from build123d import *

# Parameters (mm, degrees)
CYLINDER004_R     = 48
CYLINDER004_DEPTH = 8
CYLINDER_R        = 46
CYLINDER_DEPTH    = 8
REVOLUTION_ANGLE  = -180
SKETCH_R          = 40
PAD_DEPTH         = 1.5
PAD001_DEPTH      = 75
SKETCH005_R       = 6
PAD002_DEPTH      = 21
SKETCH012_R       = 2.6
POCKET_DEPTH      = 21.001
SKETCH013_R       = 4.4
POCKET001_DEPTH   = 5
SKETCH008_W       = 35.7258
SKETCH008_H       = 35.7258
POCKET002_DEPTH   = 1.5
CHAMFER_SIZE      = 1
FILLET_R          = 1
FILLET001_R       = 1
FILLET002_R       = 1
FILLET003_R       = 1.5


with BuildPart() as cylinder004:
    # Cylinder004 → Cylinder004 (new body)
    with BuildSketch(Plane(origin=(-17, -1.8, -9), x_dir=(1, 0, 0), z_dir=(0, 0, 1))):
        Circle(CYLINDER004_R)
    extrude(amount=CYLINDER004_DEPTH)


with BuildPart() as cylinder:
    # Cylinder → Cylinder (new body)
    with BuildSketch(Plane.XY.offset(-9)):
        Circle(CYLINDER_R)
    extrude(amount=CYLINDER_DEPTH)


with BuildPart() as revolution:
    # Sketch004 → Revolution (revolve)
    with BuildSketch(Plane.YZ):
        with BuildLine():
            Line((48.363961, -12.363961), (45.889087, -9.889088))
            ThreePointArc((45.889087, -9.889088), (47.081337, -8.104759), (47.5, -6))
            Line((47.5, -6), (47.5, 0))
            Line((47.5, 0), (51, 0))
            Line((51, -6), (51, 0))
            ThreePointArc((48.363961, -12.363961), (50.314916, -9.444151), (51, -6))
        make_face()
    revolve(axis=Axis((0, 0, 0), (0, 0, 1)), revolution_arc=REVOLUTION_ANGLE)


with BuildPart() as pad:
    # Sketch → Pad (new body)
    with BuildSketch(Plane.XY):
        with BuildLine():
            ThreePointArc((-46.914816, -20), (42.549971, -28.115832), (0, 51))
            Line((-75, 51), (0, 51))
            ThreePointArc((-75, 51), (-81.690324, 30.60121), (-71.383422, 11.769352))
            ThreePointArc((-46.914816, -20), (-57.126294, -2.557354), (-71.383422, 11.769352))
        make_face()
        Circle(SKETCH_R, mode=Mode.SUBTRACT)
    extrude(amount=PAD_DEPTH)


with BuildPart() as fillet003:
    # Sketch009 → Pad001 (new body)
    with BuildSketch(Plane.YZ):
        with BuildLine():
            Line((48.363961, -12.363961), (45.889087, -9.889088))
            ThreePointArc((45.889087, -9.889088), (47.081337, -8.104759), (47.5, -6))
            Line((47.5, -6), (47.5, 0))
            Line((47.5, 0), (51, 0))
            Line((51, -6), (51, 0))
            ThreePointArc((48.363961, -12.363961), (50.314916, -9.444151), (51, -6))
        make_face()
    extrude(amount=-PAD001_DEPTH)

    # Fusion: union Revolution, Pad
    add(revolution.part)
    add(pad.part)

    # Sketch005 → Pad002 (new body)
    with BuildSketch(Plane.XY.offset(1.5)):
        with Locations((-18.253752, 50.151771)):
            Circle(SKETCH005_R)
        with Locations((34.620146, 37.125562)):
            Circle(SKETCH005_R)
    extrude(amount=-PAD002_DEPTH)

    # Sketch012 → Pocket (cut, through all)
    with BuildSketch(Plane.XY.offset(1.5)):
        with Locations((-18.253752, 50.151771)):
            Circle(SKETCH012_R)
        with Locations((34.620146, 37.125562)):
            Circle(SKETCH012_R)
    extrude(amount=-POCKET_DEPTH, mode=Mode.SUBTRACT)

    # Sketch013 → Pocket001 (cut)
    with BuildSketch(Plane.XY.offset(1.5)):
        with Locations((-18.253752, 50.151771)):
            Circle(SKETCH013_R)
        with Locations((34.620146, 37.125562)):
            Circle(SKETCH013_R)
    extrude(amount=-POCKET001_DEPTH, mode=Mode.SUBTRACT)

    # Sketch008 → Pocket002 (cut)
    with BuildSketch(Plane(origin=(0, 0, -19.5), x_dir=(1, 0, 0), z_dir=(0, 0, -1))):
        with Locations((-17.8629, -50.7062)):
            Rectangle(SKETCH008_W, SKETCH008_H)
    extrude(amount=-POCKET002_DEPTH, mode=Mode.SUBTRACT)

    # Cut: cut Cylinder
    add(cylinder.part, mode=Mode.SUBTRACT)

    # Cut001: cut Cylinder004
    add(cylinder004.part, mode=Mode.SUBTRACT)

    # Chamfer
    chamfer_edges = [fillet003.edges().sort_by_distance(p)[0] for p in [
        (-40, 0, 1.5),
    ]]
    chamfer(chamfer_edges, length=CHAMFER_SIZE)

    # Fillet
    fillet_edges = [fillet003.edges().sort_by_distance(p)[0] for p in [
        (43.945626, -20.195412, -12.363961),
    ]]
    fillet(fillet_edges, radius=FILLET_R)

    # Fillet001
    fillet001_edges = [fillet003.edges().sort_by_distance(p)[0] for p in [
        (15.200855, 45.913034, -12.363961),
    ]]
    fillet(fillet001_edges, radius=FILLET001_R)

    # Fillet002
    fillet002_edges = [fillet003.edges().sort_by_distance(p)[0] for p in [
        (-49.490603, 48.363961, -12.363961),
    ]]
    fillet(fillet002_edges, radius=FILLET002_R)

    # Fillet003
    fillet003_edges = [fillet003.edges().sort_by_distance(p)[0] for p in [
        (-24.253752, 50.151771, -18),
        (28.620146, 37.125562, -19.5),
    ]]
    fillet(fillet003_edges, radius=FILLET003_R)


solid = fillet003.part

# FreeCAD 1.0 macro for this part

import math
import FreeCAD as App
import Part
import Sketcher

V = App.Vector
Q = App.Units.Quantity


def edges_at(feature, points):
    """Names of the edges that pass closest to the given points."""
    edges = feature.Shape.Edges
    near = lambda p: min(range(len(edges)), key=lambda i: edges[i].distToShape(Part.Vertex(*p))[0])
    return sorted({f"Edge{near(p) + 1}" for p in points})


def add_polygon(sketch, points):
    """Adds a closed chain of lines whose ends are joined by coincident constraints."""
    first, n = sketch.GeometryCount, len(points)
    for a, b in zip(points, points[1:] + points[:1]):
        sketch.addGeometry(Part.LineSegment(App.Vector(*a, 0), App.Vector(*b, 0)), False)
    for i in range(n):
        sketch.addConstraint(Sketcher.Constraint("Coincident", first + i, 2, first + (i + 1) % n, 1))

doc = App.newDocument("Part")
body = doc.addObject("PartDesign::Body", "Body")

sketch1 = body.newObject("Sketcher::SketchObject", "Sketch")
sketch1.AttachmentSupport = (doc.getObject("XY_Plane"), [""])
sketch1.MapMode = "FlatFace"
sketch1.AttachmentOffset = App.Placement(V(0, 0, -9), App.Rotation())
sketch1.addGeometry(Part.Circle(V(-17, -1.8, 0), V(0, 0, 1), 48), False)
sketch1.addConstraint([
    Sketcher.Constraint("Diameter", 0, Q("96 mm")),
    Sketcher.Constraint("DistanceX", 0, 3, -1, 1, Q("17 mm")),
    Sketcher.Constraint("DistanceY", 0, 3, -1, 1, Q("1.8 mm")),
])
pad1 = body.newObject("PartDesign::Pad", "Pad")
pad1.Profile = sketch1
pad1.Length = 8
body2 = doc.addObject("PartDesign::Body", "Body001")

sketch2 = body2.newObject("Sketcher::SketchObject", "Sketch001")
sketch2.AttachmentSupport = (doc.getObject("XY_Plane001"), [""])
sketch2.MapMode = "FlatFace"
sketch2.AttachmentOffset = App.Placement(V(0, 0, -9), App.Rotation())
sketch2.addGeometry(Part.Circle(V(0, 0, 0), V(0, 0, 1), 46), False)
sketch2.addConstraint([
    Sketcher.Constraint("Coincident", 0, 3, -1, 1),
    Sketcher.Constraint("Diameter", 0, Q("92 mm")),
])
pad2 = body2.newObject("PartDesign::Pad", "Pad001")
pad2.Profile = sketch2
pad2.Length = 8
body3 = doc.addObject("PartDesign::Body", "Body002")

sketch3 = body3.newObject("Sketcher::SketchObject", "Sketch002")
sketch3.AttachmentSupport = (doc.getObject("YZ_Plane002"), [""])
sketch3.MapMode = "FlatFace"
sketch3.addGeometry([
    Part.LineSegment(V(45.889087, -9.889088, 0), V(48.363961, -12.363961, 0)),
    Part.ArcOfCircle(Part.Circle(V(42.000003, -6.000001, 0), V(0, 0, 1), 8.999997), math.radians(-45.000008), math.radians(0.000008)),
    Part.LineSegment(V(51, -6, 0), V(51, 0, 0)),
    Part.LineSegment(V(51, 0, 0), V(47.5, 0, 0)),
    Part.LineSegment(V(47.5, 0, 0), V(47.5, -6, 0)),
    Part.ArcOfCircle(Part.Circle(V(41.999994, -5.999998, 0), V(0, 0, 1), 5.500006), math.radians(-44.999978), math.radians(-0.000022)),
], False)
sketch3.addConstraint([
    Sketcher.Constraint("Coincident", 0, 2, 1, 1),
    Sketcher.Constraint("Tangent", 1, 2, 2, 1),
    Sketcher.Constraint("Coincident", 2, 2, 3, 1),
    Sketcher.Constraint("Coincident", 3, 2, 4, 1),
    Sketcher.Constraint("Tangent", 4, 2, 5, 2),
    Sketcher.Constraint("Coincident", 5, 1, 0, 1),
    Sketcher.Constraint("Vertical", 2),
    Sketcher.Constraint("Horizontal", 3),
    Sketcher.Constraint("Vertical", 4),
    Sketcher.Constraint("Coincident", 5, 3, 1, 3),
    Sketcher.Constraint("PointOnObject", 2, 2, -1),
    Sketcher.Constraint("DistanceY", 2, 1, 2, 2, Q("6 mm")),
    Sketcher.Constraint("Angle", 0, Q("-44.999988 deg")),
    Sketcher.Constraint("DistanceX", 3, 2, 3, 1, Q("3.5 mm")),
    Sketcher.Constraint("DistanceX", -1, 1, 1, 2, Q("51 mm")),
    Sketcher.Constraint("Radius", 1, Q("8.999997 mm")),
    Sketcher.Constraint("DistanceX", -1, 1, 0, 2, Q("48.363961 mm")),
])
revolution = body3.newObject("PartDesign::Revolution", "Revolution")
revolution.Profile = sketch3
revolution.ReferenceAxis = (sketch3, ["V_Axis"])
revolution.Angle = 180
revolution.Reversed = True
body4 = doc.addObject("PartDesign::Body", "Body003")

sketch4 = body4.newObject("Sketcher::SketchObject", "Sketch003")
sketch4.AttachmentSupport = (doc.getObject("XY_Plane003"), [""])
sketch4.MapMode = "FlatFace"
sketch4.addGeometry([
    Part.ArcOfCircle(Part.Circle(V(0, 0, 0), V(0, 0, 1), 51), math.radians(-156.911228), math.radians(90.000001)),
    Part.LineSegment(V(0, 51, 0), V(-75, 51, 0)),
    Part.ArcOfCircle(Part.Circle(V(-54.804327, 33.079764, 0), V(0, 0, 1), 27.000001), math.radians(138.416379), math.radians(232.117764)),
    Part.ArcOfCircle(Part.Circle(V(-120.506659, -51.372614, 0), V(0, 0, 1), 80.000001), math.radians(23.088822), math.radians(52.117769)),
    Part.Circle(V(0, 0, 0), V(0, 0, 1), 40),
], False)
sketch4.addConstraint([
    Sketcher.Constraint("Coincident", 0, 2, 1, 1),
    Sketcher.Constraint("Coincident", 1, 2, 2, 1),
    Sketcher.Constraint("Coincident", 2, 2, 3, 2),
    Sketcher.Constraint("Coincident", 3, 1, 0, 1),
    Sketcher.Constraint("Horizontal", 1),
    Sketcher.Constraint("Coincident", 0, 3, -1, 1),
    Sketcher.Constraint("Coincident", 4, 3, -1, 1),
    Sketcher.Constraint("PointOnObject", 0, 2, -2),
    Sketcher.Constraint("Diameter", 4, Q("80 mm")),
    Sketcher.Constraint("Radius", 0, Q("51 mm")),
    Sketcher.Constraint("Radius", 2, Q("27.000001 mm")),
    Sketcher.Constraint("Radius", 3, Q("80.000001 mm")),
    Sketcher.Constraint("DistanceX", 1, 2, 1, 1, Q("75 mm")),
    Sketcher.Constraint("DistanceY", 3, 1, -1, 1, Q("20 mm")),
    Sketcher.Constraint("DistanceX", 3, 3, -1, 1, Q("120.506659 mm")),
    Sketcher.Constraint("DistanceX", 2, 2, -1, 1, Q("71.383422 mm")),
])
pad3 = body4.newObject("PartDesign::Pad", "Pad002")
pad3.Profile = sketch4
pad3.Length = 1.5
body5 = doc.addObject("PartDesign::Body", "Body004")

sketch5 = body5.newObject("Sketcher::SketchObject", "Sketch004")
sketch5.AttachmentSupport = (doc.getObject("YZ_Plane004"), [""])
sketch5.MapMode = "FlatFace"
sketch5.addGeometry([
    Part.LineSegment(V(45.889087, -9.889088, 0), V(48.363961, -12.363961, 0)),
    Part.ArcOfCircle(Part.Circle(V(42.000003, -6.000001, 0), V(0, 0, 1), 8.999997), math.radians(-45.000008), math.radians(0.000008)),
    Part.LineSegment(V(51, -6, 0), V(51, 0, 0)),
    Part.LineSegment(V(51, 0, 0), V(47.5, 0, 0)),
    Part.LineSegment(V(47.5, 0, 0), V(47.5, -6, 0)),
    Part.ArcOfCircle(Part.Circle(V(41.999994, -5.999998, 0), V(0, 0, 1), 5.500006), math.radians(-44.999978), math.radians(-0.000022)),
], False)
sketch5.addConstraint([
    Sketcher.Constraint("Coincident", 0, 2, 1, 1),
    Sketcher.Constraint("Tangent", 1, 2, 2, 1),
    Sketcher.Constraint("Coincident", 2, 2, 3, 1),
    Sketcher.Constraint("Coincident", 3, 2, 4, 1),
    Sketcher.Constraint("Tangent", 4, 2, 5, 2),
    Sketcher.Constraint("Coincident", 5, 1, 0, 1),
    Sketcher.Constraint("Vertical", 2),
    Sketcher.Constraint("Horizontal", 3),
    Sketcher.Constraint("Vertical", 4),
    Sketcher.Constraint("Coincident", 5, 3, 1, 3),
    Sketcher.Constraint("PointOnObject", 2, 2, -1),
    Sketcher.Constraint("DistanceY", 2, 1, 2, 2, Q("6 mm")),
    Sketcher.Constraint("Angle", 0, Q("-44.999988 deg")),
    Sketcher.Constraint("DistanceX", 3, 2, 3, 1, Q("3.5 mm")),
    Sketcher.Constraint("DistanceX", -1, 1, 1, 2, Q("51 mm")),
    Sketcher.Constraint("Radius", 1, Q("8.999997 mm")),
    Sketcher.Constraint("DistanceX", -1, 1, 0, 2, Q("48.363961 mm")),
])
pad4 = body5.newObject("PartDesign::Pad", "Pad003")
pad4.Profile = sketch5
pad4.Length = 75
pad4.Reversed = True
doc.recompute()

boolean = body5.newObject("PartDesign::Boolean", "Boolean")
boolean.Type = "Fuse"
boolean.addObjects([body3])
doc.recompute()

boolean2 = body5.newObject("PartDesign::Boolean", "Boolean001")
boolean2.Type = "Fuse"
boolean2.addObjects([body4])

sketch6 = body5.newObject("Sketcher::SketchObject", "Sketch005")
sketch6.AttachmentSupport = (doc.getObject("XY_Plane004"), [""])
sketch6.MapMode = "FlatFace"
sketch6.AttachmentOffset = App.Placement(V(0, 0, 1.5), App.Rotation())
sketch6.addGeometry([
    Part.Circle(V(-18.253752, 50.151771, 0), V(0, 0, 1), 6),
    Part.Circle(V(34.620146, 37.125562, 0), V(0, 0, 1), 6),
], False)
sketch6.addConstraint([
    Sketcher.Constraint("Equal", 0, 1),
    Sketcher.Constraint("Diameter", 0, Q("12 mm")),
    Sketcher.Constraint("DistanceX", 0, 3, -1, 1, Q("18.253752 mm")),
    Sketcher.Constraint("DistanceY", -1, 1, 0, 3, Q("50.151771 mm")),
    Sketcher.Constraint("DistanceY", 1, 3, 0, 3, Q("13.026209 mm")),
    Sketcher.Constraint("DistanceX", -1, 1, 1, 3, Q("34.620146 mm")),
])
pad5 = body5.newObject("PartDesign::Pad", "Pad004")
pad5.Profile = sketch6
pad5.Length = 21
pad5.Reversed = True

sketch7 = body5.newObject("Sketcher::SketchObject", "Sketch006")
sketch7.AttachmentSupport = (doc.getObject("XY_Plane004"), [""])
sketch7.MapMode = "FlatFace"
sketch7.AttachmentOffset = App.Placement(V(0, 0, 1.5), App.Rotation())
sketch7.addGeometry([
    Part.Circle(V(-18.253752, 50.151771, 0), V(0, 0, 1), 2.6),
    Part.Circle(V(34.620146, 37.125562, 0), V(0, 0, 1), 2.6),
], False)
sketch7.addConstraint([
    Sketcher.Constraint("Equal", 0, 1),
    Sketcher.Constraint("Diameter", 0, Q("5.2 mm")),
    Sketcher.Constraint("DistanceX", 0, 3, -1, 1, Q("18.253752 mm")),
    Sketcher.Constraint("DistanceY", -1, 1, 0, 3, Q("50.151771 mm")),
    Sketcher.Constraint("DistanceY", 1, 3, 0, 3, Q("13.026209 mm")),
    Sketcher.Constraint("DistanceX", -1, 1, 1, 3, Q("34.620146 mm")),
])
pocket1 = body5.newObject("PartDesign::Pocket", "Pocket")
pocket1.Profile = sketch7
pocket1.Type = "ThroughAll"

sketch8 = body5.newObject("Sketcher::SketchObject", "Sketch007")
sketch8.AttachmentSupport = (doc.getObject("XY_Plane004"), [""])
sketch8.MapMode = "FlatFace"
sketch8.AttachmentOffset = App.Placement(V(0, 0, 1.5), App.Rotation())
sketch8.addGeometry([
    Part.Circle(V(-18.253752, 50.151771, 0), V(0, 0, 1), 4.4),
    Part.Circle(V(34.620146, 37.125562, 0), V(0, 0, 1), 4.4),
], False)
sketch8.addConstraint([
    Sketcher.Constraint("Equal", 0, 1),
    Sketcher.Constraint("Diameter", 0, Q("8.8 mm")),
    Sketcher.Constraint("DistanceX", 0, 3, -1, 1, Q("18.253752 mm")),
    Sketcher.Constraint("DistanceY", -1, 1, 0, 3, Q("50.151771 mm")),
    Sketcher.Constraint("DistanceY", 1, 3, 0, 3, Q("13.026209 mm")),
    Sketcher.Constraint("DistanceX", -1, 1, 1, 3, Q("34.620146 mm")),
])
pocket2 = body5.newObject("PartDesign::Pocket", "Pocket001")
pocket2.Profile = sketch8
pocket2.Length = 5

sketch9 = body5.newObject("Sketcher::SketchObject", "Sketch008")
sketch9.AttachmentSupport = (doc.getObject("XY_Plane004"), [""])
sketch9.MapMode = "FlatFace"
sketch9.AttachmentOffset = App.Placement(V(0, 0, -19.5), App.Rotation())
add_polygon(sketch9, [(-35.7258, 32.8433), (-35.7258, 68.5691), (0, 68.5691), (0, 32.8433)])
sketch9.addConstraint([
    Sketcher.Constraint("Vertical", 0),
    Sketcher.Constraint("Horizontal", 1),
    Sketcher.Constraint("Vertical", 2),
    Sketcher.Constraint("Horizontal", 3),
    Sketcher.Constraint("PointOnObject", 1, 2, -2),
    Sketcher.Constraint("Equal", 3, 0),
    Sketcher.Constraint("DistanceX", 1, 1, 1, 2, Q("35.7258 mm")),
    Sketcher.Constraint("DistanceY", -1, 1, 0, 2, Q("68.5691 mm")),
])
pocket3 = body5.newObject("PartDesign::Pocket", "Pocket002")
pocket3.Profile = sketch9
pocket3.Length = 1.5
pocket3.Reversed = True
doc.recompute()

boolean3 = body5.newObject("PartDesign::Boolean", "Boolean002")
boolean3.Type = "Cut"
boolean3.addObjects([body2])
doc.recompute()

boolean4 = body5.newObject("PartDesign::Boolean", "Boolean003")
boolean4.Type = "Cut"
boolean4.addObjects([body])
doc.recompute()

chamfer = body5.newObject("PartDesign::Chamfer", "Chamfer")
chamfer.Base = (boolean4, edges_at(boolean4, [(-40, 0, 1.5)]))
chamfer.Size = 1
doc.recompute()

fillet = body5.newObject("PartDesign::Fillet", "Fillet")
fillet.Base = (chamfer, edges_at(chamfer, [(43.946, -20.195, -12.364)]))
fillet.Radius = 1
doc.recompute()

fillet2 = body5.newObject("PartDesign::Fillet", "Fillet001")
fillet2.Base = (fillet, edges_at(fillet, [(15.201, 45.913, -12.364)]))
fillet2.Radius = 1
doc.recompute()

fillet3 = body5.newObject("PartDesign::Fillet", "Fillet002")
fillet3.Base = (fillet2, edges_at(fillet2, [(-49.491, 48.364, -12.364)]))
fillet3.Radius = 1
doc.recompute()

fillet4 = body5.newObject("PartDesign::Fillet", "Fillet003")
fillet4.Base = (fillet3, edges_at(fillet3, [(-24.254, 50.152, -18), (28.62, 37.126, -19.5)]))
fillet4.Radius = 1.5

doc.recompute()
